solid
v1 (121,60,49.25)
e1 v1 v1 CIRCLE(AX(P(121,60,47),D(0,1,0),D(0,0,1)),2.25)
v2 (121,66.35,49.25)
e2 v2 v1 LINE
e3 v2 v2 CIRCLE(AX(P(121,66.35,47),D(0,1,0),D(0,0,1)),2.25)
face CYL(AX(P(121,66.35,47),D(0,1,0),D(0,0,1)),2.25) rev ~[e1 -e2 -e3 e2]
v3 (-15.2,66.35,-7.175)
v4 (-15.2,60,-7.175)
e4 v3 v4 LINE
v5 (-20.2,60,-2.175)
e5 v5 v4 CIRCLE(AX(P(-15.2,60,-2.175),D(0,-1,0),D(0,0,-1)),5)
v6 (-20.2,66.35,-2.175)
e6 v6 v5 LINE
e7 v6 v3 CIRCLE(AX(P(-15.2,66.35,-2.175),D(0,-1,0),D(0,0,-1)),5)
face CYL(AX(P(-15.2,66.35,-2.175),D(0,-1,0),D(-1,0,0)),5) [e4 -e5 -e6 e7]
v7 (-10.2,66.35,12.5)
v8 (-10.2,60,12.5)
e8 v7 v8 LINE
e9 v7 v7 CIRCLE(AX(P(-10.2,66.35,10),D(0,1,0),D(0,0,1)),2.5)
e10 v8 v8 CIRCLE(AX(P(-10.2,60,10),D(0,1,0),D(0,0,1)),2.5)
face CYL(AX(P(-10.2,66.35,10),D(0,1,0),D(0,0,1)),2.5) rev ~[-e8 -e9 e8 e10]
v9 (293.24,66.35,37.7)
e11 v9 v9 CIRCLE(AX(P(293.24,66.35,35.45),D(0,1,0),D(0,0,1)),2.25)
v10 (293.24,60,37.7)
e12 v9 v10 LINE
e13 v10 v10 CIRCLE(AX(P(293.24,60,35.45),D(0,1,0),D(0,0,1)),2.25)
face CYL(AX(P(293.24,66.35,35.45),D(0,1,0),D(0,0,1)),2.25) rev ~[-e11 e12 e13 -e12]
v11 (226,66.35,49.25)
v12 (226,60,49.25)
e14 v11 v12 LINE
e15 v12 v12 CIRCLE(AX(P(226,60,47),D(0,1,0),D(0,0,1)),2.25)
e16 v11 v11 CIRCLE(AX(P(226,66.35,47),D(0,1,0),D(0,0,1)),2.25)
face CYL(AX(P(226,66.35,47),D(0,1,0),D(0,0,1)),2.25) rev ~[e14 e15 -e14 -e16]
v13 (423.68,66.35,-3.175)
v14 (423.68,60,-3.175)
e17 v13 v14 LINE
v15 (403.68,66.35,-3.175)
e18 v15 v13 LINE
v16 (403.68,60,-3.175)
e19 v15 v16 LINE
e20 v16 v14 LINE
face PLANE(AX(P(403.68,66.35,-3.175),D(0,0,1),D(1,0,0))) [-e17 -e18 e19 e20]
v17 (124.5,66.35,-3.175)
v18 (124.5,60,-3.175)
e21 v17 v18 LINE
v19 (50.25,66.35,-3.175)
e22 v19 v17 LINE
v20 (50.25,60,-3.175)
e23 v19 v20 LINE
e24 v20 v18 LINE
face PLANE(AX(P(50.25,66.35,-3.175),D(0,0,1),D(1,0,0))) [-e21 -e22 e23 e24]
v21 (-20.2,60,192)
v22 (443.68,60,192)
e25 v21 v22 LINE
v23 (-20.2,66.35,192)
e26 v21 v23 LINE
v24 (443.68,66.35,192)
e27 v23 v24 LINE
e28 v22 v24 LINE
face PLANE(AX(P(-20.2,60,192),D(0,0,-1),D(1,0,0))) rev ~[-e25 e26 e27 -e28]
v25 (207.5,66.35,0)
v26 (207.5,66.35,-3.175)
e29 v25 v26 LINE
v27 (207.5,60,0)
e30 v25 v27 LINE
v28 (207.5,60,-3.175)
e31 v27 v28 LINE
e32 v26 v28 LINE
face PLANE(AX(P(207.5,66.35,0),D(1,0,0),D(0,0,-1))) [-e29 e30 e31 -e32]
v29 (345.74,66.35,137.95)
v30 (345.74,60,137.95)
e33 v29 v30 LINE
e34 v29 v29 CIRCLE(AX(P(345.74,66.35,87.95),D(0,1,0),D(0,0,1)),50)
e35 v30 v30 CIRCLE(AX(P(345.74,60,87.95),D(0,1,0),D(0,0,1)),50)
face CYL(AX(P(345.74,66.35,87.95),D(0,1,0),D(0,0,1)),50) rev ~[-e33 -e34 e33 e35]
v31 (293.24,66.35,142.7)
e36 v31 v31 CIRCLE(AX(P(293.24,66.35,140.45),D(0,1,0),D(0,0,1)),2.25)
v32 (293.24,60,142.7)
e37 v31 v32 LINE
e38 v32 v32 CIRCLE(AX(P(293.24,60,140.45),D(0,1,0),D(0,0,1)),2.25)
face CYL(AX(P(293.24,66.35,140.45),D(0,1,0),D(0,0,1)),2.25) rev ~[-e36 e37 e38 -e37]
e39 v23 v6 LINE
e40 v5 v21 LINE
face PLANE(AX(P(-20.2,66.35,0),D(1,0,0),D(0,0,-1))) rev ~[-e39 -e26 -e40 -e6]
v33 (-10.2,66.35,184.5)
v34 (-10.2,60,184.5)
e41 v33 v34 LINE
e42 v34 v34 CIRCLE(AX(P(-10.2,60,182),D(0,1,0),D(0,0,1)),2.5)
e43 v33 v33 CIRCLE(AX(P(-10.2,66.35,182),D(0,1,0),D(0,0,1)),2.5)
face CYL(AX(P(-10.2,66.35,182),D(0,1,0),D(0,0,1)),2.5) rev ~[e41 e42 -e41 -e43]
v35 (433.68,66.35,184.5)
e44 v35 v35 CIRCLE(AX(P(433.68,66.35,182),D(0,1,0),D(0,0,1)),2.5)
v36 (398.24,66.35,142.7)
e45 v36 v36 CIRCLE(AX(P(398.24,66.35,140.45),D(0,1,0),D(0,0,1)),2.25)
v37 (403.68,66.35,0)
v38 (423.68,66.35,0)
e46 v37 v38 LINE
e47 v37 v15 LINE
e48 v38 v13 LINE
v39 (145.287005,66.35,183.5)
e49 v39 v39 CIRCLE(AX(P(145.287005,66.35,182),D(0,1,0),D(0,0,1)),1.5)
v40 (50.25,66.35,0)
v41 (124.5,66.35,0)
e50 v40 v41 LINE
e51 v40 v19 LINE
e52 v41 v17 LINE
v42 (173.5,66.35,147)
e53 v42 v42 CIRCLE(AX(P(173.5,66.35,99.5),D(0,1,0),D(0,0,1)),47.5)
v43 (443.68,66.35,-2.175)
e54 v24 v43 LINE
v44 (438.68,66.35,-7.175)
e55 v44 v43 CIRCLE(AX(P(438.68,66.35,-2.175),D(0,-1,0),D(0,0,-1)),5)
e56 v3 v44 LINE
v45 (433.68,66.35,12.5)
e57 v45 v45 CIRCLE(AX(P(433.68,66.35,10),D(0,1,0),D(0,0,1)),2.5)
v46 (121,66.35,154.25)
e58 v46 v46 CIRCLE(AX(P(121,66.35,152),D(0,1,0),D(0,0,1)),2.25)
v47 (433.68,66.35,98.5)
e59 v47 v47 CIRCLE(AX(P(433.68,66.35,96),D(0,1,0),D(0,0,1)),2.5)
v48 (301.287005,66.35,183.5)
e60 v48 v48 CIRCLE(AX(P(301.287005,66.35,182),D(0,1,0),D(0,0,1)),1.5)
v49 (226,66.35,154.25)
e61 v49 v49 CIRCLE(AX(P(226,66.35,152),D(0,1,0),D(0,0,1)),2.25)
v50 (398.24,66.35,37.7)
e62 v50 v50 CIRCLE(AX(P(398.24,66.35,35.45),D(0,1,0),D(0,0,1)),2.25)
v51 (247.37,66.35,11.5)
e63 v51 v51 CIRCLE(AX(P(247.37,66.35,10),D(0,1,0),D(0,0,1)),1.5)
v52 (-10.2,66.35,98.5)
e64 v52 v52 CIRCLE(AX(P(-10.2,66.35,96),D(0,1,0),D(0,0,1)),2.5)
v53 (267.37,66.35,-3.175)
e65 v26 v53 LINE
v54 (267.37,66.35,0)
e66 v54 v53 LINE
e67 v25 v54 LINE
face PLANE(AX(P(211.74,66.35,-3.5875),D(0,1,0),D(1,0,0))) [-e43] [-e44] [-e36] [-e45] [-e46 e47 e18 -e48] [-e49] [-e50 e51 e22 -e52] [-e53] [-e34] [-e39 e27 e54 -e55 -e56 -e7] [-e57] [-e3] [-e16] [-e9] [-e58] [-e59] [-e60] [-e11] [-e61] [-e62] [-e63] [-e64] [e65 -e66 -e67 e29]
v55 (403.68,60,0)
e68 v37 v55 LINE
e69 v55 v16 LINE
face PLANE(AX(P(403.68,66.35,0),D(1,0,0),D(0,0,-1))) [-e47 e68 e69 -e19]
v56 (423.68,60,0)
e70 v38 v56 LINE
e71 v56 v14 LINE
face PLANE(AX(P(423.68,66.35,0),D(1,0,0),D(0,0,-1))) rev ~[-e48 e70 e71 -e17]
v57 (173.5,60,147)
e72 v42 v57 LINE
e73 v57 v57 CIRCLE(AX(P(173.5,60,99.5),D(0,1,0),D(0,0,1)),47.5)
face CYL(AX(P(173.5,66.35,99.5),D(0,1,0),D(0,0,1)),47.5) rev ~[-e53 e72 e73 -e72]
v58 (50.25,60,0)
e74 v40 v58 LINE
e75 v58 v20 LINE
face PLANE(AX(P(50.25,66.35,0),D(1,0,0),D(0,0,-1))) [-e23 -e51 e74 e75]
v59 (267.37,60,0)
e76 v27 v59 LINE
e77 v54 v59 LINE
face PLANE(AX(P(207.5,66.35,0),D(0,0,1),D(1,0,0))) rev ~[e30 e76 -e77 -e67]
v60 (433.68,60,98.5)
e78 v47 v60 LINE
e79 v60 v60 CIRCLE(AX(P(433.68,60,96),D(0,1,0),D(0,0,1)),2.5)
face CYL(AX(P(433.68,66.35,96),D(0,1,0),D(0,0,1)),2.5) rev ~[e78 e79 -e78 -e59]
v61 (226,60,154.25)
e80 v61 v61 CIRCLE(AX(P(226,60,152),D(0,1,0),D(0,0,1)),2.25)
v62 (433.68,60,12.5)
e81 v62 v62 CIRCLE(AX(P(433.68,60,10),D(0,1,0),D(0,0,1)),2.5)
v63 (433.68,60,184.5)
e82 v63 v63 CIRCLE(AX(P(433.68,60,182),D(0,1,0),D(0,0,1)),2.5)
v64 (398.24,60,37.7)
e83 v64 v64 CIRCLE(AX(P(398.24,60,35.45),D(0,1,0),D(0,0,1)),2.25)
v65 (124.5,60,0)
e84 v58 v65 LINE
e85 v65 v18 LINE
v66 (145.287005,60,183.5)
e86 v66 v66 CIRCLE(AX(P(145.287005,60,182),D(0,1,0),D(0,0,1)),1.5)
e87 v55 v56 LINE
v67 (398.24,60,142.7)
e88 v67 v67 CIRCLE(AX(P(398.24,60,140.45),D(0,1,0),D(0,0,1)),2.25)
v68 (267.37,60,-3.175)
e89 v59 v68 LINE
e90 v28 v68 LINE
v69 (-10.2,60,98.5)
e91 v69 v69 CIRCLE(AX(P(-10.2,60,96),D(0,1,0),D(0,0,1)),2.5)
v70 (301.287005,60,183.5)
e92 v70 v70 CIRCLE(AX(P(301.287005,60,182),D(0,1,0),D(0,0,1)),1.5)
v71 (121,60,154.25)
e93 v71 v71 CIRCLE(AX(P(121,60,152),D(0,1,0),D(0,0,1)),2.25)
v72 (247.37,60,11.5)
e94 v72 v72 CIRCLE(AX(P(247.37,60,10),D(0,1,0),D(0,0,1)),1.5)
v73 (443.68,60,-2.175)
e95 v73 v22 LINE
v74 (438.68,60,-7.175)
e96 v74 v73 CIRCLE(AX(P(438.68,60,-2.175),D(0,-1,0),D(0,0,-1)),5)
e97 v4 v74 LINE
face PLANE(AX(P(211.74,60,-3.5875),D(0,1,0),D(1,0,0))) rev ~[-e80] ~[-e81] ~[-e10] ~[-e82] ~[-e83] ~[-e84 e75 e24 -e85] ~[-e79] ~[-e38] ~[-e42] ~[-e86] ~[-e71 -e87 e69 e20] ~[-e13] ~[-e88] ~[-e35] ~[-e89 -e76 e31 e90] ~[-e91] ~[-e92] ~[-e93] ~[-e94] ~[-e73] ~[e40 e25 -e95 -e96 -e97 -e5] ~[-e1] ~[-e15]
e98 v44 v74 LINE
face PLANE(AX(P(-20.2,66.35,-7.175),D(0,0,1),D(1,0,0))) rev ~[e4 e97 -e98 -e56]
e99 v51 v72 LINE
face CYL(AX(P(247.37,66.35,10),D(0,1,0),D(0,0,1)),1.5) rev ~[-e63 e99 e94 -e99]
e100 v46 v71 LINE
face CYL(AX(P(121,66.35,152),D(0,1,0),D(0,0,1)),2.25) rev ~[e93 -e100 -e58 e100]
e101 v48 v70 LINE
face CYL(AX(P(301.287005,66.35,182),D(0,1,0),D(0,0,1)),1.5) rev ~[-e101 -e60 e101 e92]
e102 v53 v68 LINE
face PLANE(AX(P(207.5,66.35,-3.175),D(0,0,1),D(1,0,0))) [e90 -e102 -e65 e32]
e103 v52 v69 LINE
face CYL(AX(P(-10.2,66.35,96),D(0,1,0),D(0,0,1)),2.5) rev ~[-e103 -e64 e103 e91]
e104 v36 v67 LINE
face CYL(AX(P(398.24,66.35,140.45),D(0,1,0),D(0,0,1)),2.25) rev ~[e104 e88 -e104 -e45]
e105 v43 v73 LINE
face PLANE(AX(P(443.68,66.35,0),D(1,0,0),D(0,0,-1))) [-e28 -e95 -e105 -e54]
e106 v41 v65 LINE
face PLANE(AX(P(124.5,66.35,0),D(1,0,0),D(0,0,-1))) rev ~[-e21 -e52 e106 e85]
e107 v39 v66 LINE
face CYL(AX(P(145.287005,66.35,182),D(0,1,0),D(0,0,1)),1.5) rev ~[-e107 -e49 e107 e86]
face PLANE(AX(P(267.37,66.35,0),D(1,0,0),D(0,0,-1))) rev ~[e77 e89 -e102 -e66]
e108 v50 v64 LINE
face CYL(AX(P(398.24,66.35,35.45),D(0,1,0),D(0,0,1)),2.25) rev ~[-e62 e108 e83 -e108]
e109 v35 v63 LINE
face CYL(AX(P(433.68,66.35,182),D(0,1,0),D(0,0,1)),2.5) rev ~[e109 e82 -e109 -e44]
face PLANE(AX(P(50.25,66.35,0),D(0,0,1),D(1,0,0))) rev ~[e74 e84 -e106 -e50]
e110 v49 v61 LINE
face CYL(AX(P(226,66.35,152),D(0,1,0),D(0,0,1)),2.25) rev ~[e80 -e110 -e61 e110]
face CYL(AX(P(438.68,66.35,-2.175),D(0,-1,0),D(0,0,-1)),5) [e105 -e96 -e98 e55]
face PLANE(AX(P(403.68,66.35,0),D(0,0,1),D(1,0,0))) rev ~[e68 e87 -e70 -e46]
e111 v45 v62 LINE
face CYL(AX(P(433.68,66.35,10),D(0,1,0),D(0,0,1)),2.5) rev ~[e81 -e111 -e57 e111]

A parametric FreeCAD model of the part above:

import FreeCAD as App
import Part
import Sketcher
from FreeCAD import Vector
Q = App.Units.Quantity


def edges_at(feature, points):
    """Names of the edges that pass closest to the given points."""
    edges = feature.Shape.Edges
    near = lambda p: min(range(len(edges)), key=lambda i: edges[i].distToShape(Part.Vertex(*p))[0])
    return sorted({f"Edge{near(p) + 1}" for p in points})


def add_polygon(sketch, points):
    """Adds a closed chain of lines whose ends are joined by coincident constraints."""
    first, n = sketch.GeometryCount, len(points)
    for a, b in zip(points, points[1:] + points[:1]):
        sketch.addGeometry(Part.LineSegment(App.Vector(*a, 0), App.Vector(*b, 0)), False)
    for i in range(n):
        sketch.addConstraint(Sketcher.Constraint("Coincident", first + i, 2, first + (i + 1) % n, 1))

doc = App.newDocument("Part")
body = doc.addObject("PartDesign::Body", "Body")

sketch1 = body.newObject("Sketcher::SketchObject", "Sketch")
sketch1.AttachmentSupport = (doc.getObject("XZ_Plane"), [""])
sketch1.MapMode = "FlatFace"
sketch1.AttachmentOffset = App.Placement(Vector(0, 0, -60), App.Rotation())
add_polygon(sketch1, [(-20, 0), (-20, 192), (444, 192), (444, 0)])
sketch1.addConstraint([
    Sketcher.Constraint("Vertical", 0),
    Sketcher.Constraint("Horizontal", 1),
    Sketcher.Constraint("Vertical", 2),
    Sketcher.Constraint("Horizontal", 3),
    Sketcher.Constraint("PointOnObject", 2, 2, -1),
    Sketcher.Constraint("DistanceY", 0, 1, 0, 2, Q("192 mm")),
    Sketcher.Constraint("DistanceX", 1, 1, 1, 2, Q("463.88 mm")),
    Sketcher.Constraint("DistanceX", 0, 2, -1, 1, Q("20.2 mm")),
])
pad1 = body.newObject("PartDesign::Pad", "Pad")
pad1.Profile = sketch1
pad1.Length = 6.35
pad1.Reversed = True

sketch2 = body.newObject("Sketcher::SketchObject", "Sketch001")
sketch2.AttachmentSupport = (doc.getObject("XZ_Plane"), [""])
sketch2.MapMode = "FlatFace"
sketch2.AttachmentOffset = App.Placement(Vector(0, 0, -66.35), App.Rotation())
sketch2.addGeometry([
    Part.Circle(Vector(433.7, 10, 0), Vector(0, 0, 1), 2.5),
    Part.Circle(Vector(433.7, 96, 0), Vector(0, 0, 1), 2.5),
    Part.Circle(Vector(433.7, 182, 0), Vector(0, 0, 1), 2.5),
    Part.Circle(Vector(-10.2, 182, 0), Vector(0, 0, 1), 2.5),
    Part.Circle(Vector(-10.2, 96, 0), Vector(0, 0, 1), 2.5),
    Part.Circle(Vector(-10.2, 10, 0), Vector(0, 0, 1), 2.5),
], False)
sketch2.addConstraint([
    Sketcher.Constraint("Equal", 0, 1),
    Sketcher.Constraint("Equal", 1, 2),
    Sketcher.Constraint("Equal", 2, 3),
    Sketcher.Constraint("Equal", 3, 4),
    Sketcher.Constraint("Equal", 4, 5),
    Sketcher.Constraint("Horizontal", 2, 3, 3, 3),
    Sketcher.Constraint("Horizontal", 1, 3, 4, 3),
    Sketcher.Constraint("Horizontal", 0, 3, 5, 3),
    Sketcher.Constraint("Vertical", 0, 3, 1, 3),
    Sketcher.Constraint("Vertical", 1, 3, 2, 3),
    Sketcher.Constraint("Vertical", 3, 3, 4, 3),
    Sketcher.Constraint("Vertical", 4, 3, 5, 3),
    Sketcher.Constraint("Diameter", 0, Q("5 mm")),
    Sketcher.Constraint("DistanceY", -1, 1, 0, 3, Q("10 mm")),
    Sketcher.Constraint("DistanceY", -1, 1, 1, 3, Q("96 mm")),
    Sketcher.Constraint("DistanceY", -1, 1, 2, 3, Q("182 mm")),
    Sketcher.Constraint("DistanceX", 3, 3, -1, 1, Q("10.2 mm")),
    Sketcher.Constraint("DistanceX", -1, 1, 0, 3, Q("433.68 mm")),
])
pocket1 = body.newObject("PartDesign::Pocket", "Pocket")
pocket1.Profile = sketch2
pocket1.Type = "ThroughAll"
pocket1.Reversed = True

sketch3 = body.newObject("Sketcher::SketchObject", "Sketch002")
sketch3.AttachmentSupport = (doc.getObject("XZ_Plane"), [""])
sketch3.MapMode = "FlatFace"
sketch3.AttachmentOffset = App.Placement(Vector(0, 0, -66.35), App.Rotation())
add_polygon(sketch3, [(-20, -7), (-20, 0), (444, 0), (444, -7)])
sketch3.addConstraint([
    Sketcher.Constraint("Vertical", 0),
    Sketcher.Constraint("Horizontal", 1),
    Sketcher.Constraint("Vertical", 2),
    Sketcher.Constraint("Horizontal", 3),
    Sketcher.Constraint("PointOnObject", 0, 2, -1),
    Sketcher.Constraint("DistanceX", 1, 1, 1, 2, Q("463.88 mm")),
    Sketcher.Constraint("DistanceX", 0, 2, -1, 1, Q("20.2 mm")),
    Sketcher.Constraint("DistanceY", 0, 1, 0, 2, Q("7.175 mm")),
])
pad2 = body.newObject("PartDesign::Pad", "Pad001")
pad2.Profile = sketch3
pad2.Length = 6.35

sketch4 = body.newObject("Sketcher::SketchObject", "Sketch003")
sketch4.AttachmentSupport = (doc.getObject("XZ_Plane"), [""])
sketch4.MapMode = "FlatFace"
sketch4.AttachmentOffset = App.Placement(Vector(0, 0, -66.35), App.Rotation())
add_polygon(sketch4, [(50.2, -3.2), (50.2, 0), (124.5, 0), (124.5, -3.2)])
add_polygon(sketch4, [(207.5, -3.2), (207.5, 0), (267.4, 0), (267.4, -3.2)])
add_polygon(sketch4, [(403.7, -3.2), (403.7, 0), (423.7, 0), (423.7, -3.2)])
sketch4.addConstraint([
    Sketcher.Constraint("Vertical", 0),
    Sketcher.Constraint("Horizontal", 1),
    Sketcher.Constraint("Vertical", 2),
    Sketcher.Constraint("Horizontal", 3),
    Sketcher.Constraint("Vertical", 4),
    Sketcher.Constraint("Horizontal", 5),
    Sketcher.Constraint("Vertical", 6),
    Sketcher.Constraint("Horizontal", 7),
    Sketcher.Constraint("Vertical", 8),
    Sketcher.Constraint("Horizontal", 9),
    Sketcher.Constraint("Vertical", 10),
    Sketcher.Constraint("Horizontal", 11),
    Sketcher.Constraint("PointOnObject", 0, 2, -1),
    Sketcher.Constraint("PointOnObject", 4, 2, -1),
    Sketcher.Constraint("PointOnObject", 8, 2, -1),
    Sketcher.Constraint("Horizontal", 3, 2, 6, 2),
    Sketcher.Constraint("Horizontal", 7, 2, 10, 2),
    Sketcher.Constraint("DistanceX", 9, 1, 9, 2, Q("20 mm")),
    Sketcher.Constraint("DistanceX", 1, 2, 4, 2, Q("83 mm")),
    Sketcher.Constraint("DistanceX", 1, 1, 1, 2, Q("74.25 mm")),
    Sketcher.Constraint("DistanceX", 5, 1, 5, 2, Q("59.87 mm")),
    Sketcher.Constraint("DistanceX", -1, 1, 1, 2, Q("124.5 mm")),
    Sketcher.Constraint("DistanceY", 0, 1, 0, 2, Q("3.175 mm")),
    Sketcher.Constraint("DistanceX", -1, 1, 8, 2, Q("403.68 mm")),
])
pocket2 = body.newObject("PartDesign::Pocket", "Pocket001")
pocket2.Profile = sketch4
pocket2.Type = "ThroughAll"
pocket2.Reversed = True

sketch5 = body.newObject("Sketcher::SketchObject", "Sketch004")
sketch5.AttachmentSupport = (doc.getObject("XZ_Plane"), [""])
sketch5.MapMode = "FlatFace"
sketch5.AttachmentOffset = App.Placement(Vector(0, 0, -66.35), App.Rotation())
sketch5.addGeometry([
    Part.Circle(Vector(247.4, 10, 0), Vector(0, 0, 1), 1.5),
    Part.Circle(Vector(145.3, 182, 0), Vector(0, 0, 1), 1.5),
    Part.Circle(Vector(301.3, 182, 0), Vector(0, 0, 1), 1.5),
], False)
sketch5.addConstraint([
    Sketcher.Constraint("Equal", 0, 1),
    Sketcher.Constraint("Equal", 1, 2),
    Sketcher.Constraint("Horizontal", 1, 3, 2, 3),
    Sketcher.Constraint("Diameter", 0, Q("3 mm")),
    Sketcher.Constraint("DistanceY", -1, 1, 0, 3, Q("10 mm")),
    Sketcher.Constraint("DistanceY", -1, 1, 1, 3, Q("182 mm")),
    Sketcher.Constraint("DistanceX", 1, 3, 2, 3, Q("156 mm")),
    Sketcher.Constraint("DistanceX", -1, 1, 0, 3, Q("247.37 mm")),
    Sketcher.Constraint("DistanceX", -1, 1, 1, 3, Q("145.287005 mm")),
])
pocket3 = body.newObject("PartDesign::Pocket", "Pocket002")
pocket3.Profile = sketch5
pocket3.Type = "ThroughAll"
pocket3.Reversed = True
doc.recompute()

fillet = body.newObject("PartDesign::Fillet", "Fillet")
fillet.Base = (pocket3, edges_at(pocket3, [(-20.2, 63.175, -7.175), (443.68, 63.175, -7.175)]))
fillet.Radius = 5

sketch6 = body.newObject("Sketcher::SketchObject", "Sketch005")
sketch6.AttachmentSupport = (doc.getObject("XZ_Plane"), [""])
sketch6.MapMode = "FlatFace"
sketch6.AttachmentOffset = App.Placement(Vector(0, 0, -66.35), App.Rotation())
sketch6.addGeometry([
    Part.Circle(Vector(173.5, 99.5, 0), Vector(0, 0, 1), 47.5),
    Part.Circle(Vector(345.7, 88, 0), Vector(0, 0, 1), 50),
    Part.Circle(Vector(121, 47, 0), Vector(0, 0, 1), 2.2),
    Part.Circle(Vector(226, 47, 0), Vector(0, 0, 1), 2.2),
    Part.Circle(Vector(226, 152, 0), Vector(0, 0, 1), 2.2),
    Part.Circle(Vector(121, 152, 0), Vector(0, 0, 1), 2.2),
    Part.Circle(Vector(293.2, 140.4, 0), Vector(0, 0, 1), 2.2),
    Part.Circle(Vector(293.2, 35.5, 0), Vector(0, 0, 1), 2.2),
    Part.Circle(Vector(398.2, 35.5, 0), Vector(0, 0, 1), 2.2),
    Part.Circle(Vector(398.2, 140.4, 0), Vector(0, 0, 1), 2.2),
], False)
sketch6.addConstraint([
    Sketcher.Constraint("Equal", 2, 3),
    Sketcher.Constraint("Equal", 3, 4),
    Sketcher.Constraint("Equal", 4, 5),
    Sketcher.Constraint("Equal", 5, 6),
    Sketcher.Constraint("Equal", 6, 7),
    Sketcher.Constraint("Equal", 7, 8),
    Sketcher.Constraint("Equal", 8, 9),
    Sketcher.Constraint("Horizontal", 2, 3, 3, 3),
    Sketcher.Constraint("Horizontal", 4, 3, 5, 3),
    Sketcher.Constraint("Horizontal", 7, 3, 8, 3),
    Sketcher.Constraint("Horizontal", 6, 3, 9, 3),
    Sketcher.Constraint("Vertical", 3, 3, 4, 3),
    Sketcher.Constraint("Vertical", 2, 3, 5, 3),
    Sketcher.Constraint("Vertical", 6, 3, 7, 3),
    Sketcher.Constraint("Vertical", 8, 3, 9, 3),
    Sketcher.Constraint("Diameter", 0, Q("95 mm")),
    Sketcher.Constraint("Diameter", 1, Q("100 mm")),
    Sketcher.Constraint("Diameter", 2, Q("4.5 mm")),
    Sketcher.Constraint("DistanceX", -1, 1, 2, 3, Q("121 mm")),
    Sketcher.Constraint("DistanceY", -1, 1, 2, 3, Q("47 mm")),
    Sketcher.Constraint("DistanceX", -1, 1, 3, 3, Q("226 mm")),
    Sketcher.Constraint("DistanceY", -1, 1, 4, 3, Q("152 mm")),
    Sketcher.Constraint("DistanceY", 7, 3, 6, 3, Q("105 mm")),
    Sketcher.Constraint("DistanceX", 7, 3, 8, 3, Q("105 mm")),
    Sketcher.Constraint("DistanceX", -1, 1, 0, 3, Q("173.5 mm")),
    Sketcher.Constraint("DistanceY", -1, 1, 0, 3, Q("99.5 mm")),
    Sketcher.Constraint("DistanceX", 6, 3, 1, 3, Q("52.5 mm")),
    Sketcher.Constraint("DistanceY", 1, 3, 6, 3, Q("52.5 mm")),
    Sketcher.Constraint("DistanceX", -1, 1, 1, 3, Q("345.74 mm")),
    Sketcher.Constraint("DistanceY", -1, 1, 1, 3, Q("87.95 mm")),
])
pocket4 = body.newObject("PartDesign::Pocket", "Pocket003")
pocket4.Profile = sketch6
pocket4.Type = "ThroughAll"
pocket4.Reversed = True

doc.recompute()
